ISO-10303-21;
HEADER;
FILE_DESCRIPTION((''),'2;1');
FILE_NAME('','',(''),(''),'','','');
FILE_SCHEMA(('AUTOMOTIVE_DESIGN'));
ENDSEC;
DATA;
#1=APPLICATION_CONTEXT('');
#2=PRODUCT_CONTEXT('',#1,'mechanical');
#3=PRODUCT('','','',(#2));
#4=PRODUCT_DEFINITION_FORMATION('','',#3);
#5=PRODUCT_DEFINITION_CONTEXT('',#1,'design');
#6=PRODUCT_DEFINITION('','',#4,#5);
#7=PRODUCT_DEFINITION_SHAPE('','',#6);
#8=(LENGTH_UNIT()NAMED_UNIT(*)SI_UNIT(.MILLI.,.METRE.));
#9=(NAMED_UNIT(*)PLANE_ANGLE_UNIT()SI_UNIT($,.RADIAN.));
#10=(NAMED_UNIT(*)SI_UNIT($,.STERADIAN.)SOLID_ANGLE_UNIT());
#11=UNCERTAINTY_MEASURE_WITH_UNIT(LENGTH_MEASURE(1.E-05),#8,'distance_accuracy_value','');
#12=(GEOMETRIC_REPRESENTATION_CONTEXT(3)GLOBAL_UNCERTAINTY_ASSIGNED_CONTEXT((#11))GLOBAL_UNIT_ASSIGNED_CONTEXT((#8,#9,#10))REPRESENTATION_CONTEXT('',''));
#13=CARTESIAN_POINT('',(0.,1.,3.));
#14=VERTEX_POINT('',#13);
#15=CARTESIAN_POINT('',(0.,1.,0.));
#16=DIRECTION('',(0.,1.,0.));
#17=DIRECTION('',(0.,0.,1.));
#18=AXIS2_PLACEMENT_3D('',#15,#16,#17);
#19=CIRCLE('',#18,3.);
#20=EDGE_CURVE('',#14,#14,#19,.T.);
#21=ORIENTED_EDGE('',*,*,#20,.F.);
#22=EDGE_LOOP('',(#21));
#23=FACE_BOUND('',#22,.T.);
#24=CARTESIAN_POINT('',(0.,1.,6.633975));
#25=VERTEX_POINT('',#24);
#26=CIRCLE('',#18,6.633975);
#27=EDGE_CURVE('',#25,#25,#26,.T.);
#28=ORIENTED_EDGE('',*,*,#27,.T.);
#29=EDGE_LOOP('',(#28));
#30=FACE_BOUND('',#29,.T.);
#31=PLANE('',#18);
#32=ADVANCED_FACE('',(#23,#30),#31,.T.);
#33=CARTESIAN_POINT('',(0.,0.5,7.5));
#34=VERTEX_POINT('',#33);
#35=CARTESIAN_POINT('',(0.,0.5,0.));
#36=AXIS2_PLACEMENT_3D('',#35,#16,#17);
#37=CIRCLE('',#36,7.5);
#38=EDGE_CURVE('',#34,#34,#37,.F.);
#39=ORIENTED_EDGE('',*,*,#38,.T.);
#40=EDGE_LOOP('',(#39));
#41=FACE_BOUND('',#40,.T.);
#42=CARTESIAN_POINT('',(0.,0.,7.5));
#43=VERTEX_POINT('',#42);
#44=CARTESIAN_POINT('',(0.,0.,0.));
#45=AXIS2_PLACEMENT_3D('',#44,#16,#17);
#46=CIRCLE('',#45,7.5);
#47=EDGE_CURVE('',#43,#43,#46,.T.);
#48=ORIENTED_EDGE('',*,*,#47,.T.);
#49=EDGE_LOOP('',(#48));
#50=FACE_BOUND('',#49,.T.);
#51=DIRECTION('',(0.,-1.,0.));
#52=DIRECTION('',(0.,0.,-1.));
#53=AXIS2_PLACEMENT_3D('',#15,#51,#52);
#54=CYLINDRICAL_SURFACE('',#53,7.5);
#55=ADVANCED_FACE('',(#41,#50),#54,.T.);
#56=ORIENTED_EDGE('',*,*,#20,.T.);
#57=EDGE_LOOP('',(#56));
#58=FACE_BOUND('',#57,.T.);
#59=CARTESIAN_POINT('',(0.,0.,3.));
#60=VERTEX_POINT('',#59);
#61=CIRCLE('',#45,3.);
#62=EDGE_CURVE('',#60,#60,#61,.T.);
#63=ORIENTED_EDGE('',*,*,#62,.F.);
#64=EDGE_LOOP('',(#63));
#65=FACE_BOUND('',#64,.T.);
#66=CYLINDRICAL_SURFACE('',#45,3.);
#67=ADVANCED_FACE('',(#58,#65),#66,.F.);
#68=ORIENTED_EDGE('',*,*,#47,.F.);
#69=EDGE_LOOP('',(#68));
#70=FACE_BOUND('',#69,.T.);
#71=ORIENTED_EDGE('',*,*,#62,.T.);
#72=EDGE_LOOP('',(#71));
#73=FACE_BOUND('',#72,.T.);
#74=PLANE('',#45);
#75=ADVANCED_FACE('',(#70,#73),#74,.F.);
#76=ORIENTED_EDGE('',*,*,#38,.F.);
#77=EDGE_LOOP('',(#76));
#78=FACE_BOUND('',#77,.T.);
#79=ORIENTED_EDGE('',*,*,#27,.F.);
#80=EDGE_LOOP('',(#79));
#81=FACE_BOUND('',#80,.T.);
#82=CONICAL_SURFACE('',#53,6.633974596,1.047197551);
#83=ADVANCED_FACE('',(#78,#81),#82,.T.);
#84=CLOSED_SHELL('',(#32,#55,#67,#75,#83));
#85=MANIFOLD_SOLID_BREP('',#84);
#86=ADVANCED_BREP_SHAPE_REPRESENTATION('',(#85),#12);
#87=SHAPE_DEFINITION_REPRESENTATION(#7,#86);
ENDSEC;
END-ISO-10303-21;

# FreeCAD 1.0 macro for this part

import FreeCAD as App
import Part
import Sketcher

V = App.Vector
Q = App.Units.Quantity


def edges_at(feature, points):
    """Names of the edges that pass closest to the given points."""
    edges = feature.Shape.Edges
    near = lambda p: min(range(len(edges)), key=lambda i: edges[i].distToShape(Part.Vertex(*p))[0])
    return sorted({f"Edge{near(p) + 1}" for p in points})

doc = App.newDocument("Part")
body = doc.addObject("PartDesign::Body", "Body")

# Sketch on XZ plane
sketch1 = body.newObject("Sketcher::SketchObject", "Sketch")
sketch1.AttachmentSupport = (doc.getObject("XZ_Plane"), [""])
sketch1.MapMode = "FlatFace"
sketch1.addGeometry(Part.Circle(V(0, 0, 0), V(0, 0, 1), 8), False)
sketch1.addConstraint([
    Sketcher.Constraint("Coincident", 0, 3, -1, 1),
    Sketcher.Constraint("Diameter", 0, Q("15 mm")),
])
pad1 = body.newObject("PartDesign::Pad", "Pad")
pad1.Profile = sketch1
pad1.Length = 1
pad1.Reversed = True
doc.recompute()

chamfer = body.newObject("PartDesign::Chamfer", "Chamfer")
chamfer.Base = (pad1, edges_at(pad1, [(-7.5, 1, 0)]))
chamfer.ChamferType = "Two distances"
chamfer.Size = 0.5
chamfer.Size2 = 0.866025

# Sketch on XZ plane
sketch2 = body.newObject("Sketcher::SketchObject", "Sketch001")
sketch2.AttachmentSupport = (doc.getObject("XZ_Plane"), [""])
sketch2.MapMode = "FlatFace"
sketch2.AttachmentOffset = App.Placement(V(0, 0, -1), App.Rotation())
sketch2.addGeometry(Part.Circle(V(0, 0, 0), V(0, 0, 1), 3), False)
sketch2.addConstraint([
    Sketcher.Constraint("Coincident", 0, 3, -1, 1),
    Sketcher.Constraint("Diameter", 0, Q("6 mm")),
])
pocket1 = body.newObject("PartDesign::Pocket", "Pocket")
pocket1.Profile = sketch2
pocket1.Length = 1
pocket1.Reversed = True

doc.recompute()
